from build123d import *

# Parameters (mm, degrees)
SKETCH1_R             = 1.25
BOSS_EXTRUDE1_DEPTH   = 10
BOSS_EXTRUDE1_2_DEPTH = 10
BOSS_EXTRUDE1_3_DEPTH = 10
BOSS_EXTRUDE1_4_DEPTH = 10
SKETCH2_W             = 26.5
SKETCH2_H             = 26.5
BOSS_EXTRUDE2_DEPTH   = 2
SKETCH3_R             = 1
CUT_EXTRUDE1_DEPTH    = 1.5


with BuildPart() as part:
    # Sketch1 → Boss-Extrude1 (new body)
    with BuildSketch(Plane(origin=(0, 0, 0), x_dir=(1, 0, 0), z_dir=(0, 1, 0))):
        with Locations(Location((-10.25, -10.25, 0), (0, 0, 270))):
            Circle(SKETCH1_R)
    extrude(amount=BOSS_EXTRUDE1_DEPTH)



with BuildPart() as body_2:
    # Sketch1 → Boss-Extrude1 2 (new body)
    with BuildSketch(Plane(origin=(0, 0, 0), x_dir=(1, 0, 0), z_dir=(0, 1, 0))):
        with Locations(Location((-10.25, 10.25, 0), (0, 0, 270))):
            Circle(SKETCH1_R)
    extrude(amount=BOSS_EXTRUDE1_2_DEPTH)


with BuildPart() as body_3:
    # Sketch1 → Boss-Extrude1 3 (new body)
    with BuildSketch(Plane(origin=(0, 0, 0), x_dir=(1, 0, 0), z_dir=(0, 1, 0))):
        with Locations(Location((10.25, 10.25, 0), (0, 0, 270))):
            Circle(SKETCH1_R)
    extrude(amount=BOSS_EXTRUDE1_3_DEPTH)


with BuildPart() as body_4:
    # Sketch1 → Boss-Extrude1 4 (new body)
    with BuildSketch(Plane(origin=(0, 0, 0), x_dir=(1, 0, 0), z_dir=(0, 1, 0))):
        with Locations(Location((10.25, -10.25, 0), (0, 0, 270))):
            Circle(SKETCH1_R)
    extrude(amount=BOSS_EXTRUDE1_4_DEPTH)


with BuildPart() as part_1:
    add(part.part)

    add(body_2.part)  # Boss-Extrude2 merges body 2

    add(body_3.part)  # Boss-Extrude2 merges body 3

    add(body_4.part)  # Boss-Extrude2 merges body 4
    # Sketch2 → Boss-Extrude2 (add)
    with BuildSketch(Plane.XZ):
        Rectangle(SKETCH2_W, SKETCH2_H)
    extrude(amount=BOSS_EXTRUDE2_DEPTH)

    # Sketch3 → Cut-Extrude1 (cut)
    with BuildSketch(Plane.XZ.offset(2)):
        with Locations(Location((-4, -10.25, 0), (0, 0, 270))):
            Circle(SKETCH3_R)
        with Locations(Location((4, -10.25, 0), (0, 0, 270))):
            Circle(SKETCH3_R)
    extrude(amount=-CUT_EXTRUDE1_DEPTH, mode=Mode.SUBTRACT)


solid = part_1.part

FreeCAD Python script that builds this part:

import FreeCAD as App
import Part
import Sketcher

doc = App.newDocument("Part")
body = doc.addObject("PartDesign::Body", "Body")

# Sketch on XZ plane
sketch1 = body.newObject("Sketcher::SketchObject", "Sketch")
sketch1.AttachmentSupport = (doc.getObject("XZ_Plane"), [""])
sketch1.MapMode = "FlatFace"
sketch1.addGeometry(Part.Circle(App.Vector(-10.2, 10.2, 0), App.Vector(0, 0, 1), 1.2), False)
sketch1.addConstraint([
    Sketcher.Constraint("Diameter", 0, 2.5),
    Sketcher.Constraint("DistanceX", 0, 3, -1, 1, 10.25),
    Sketcher.Constraint("DistanceY", -1, 1, 0, 3, 10.25),
])
pad1 = body.newObject("PartDesign::Pad", "Pad")
pad1.Profile = sketch1
pad1.Length = 10
pad1.Reversed = True
body2 = doc.addObject("PartDesign::Body", "Body001")

# Sketch on XZ plane
sketch2 = body2.newObject("Sketcher::SketchObject", "Sketch001")
sketch2.AttachmentSupport = (doc.getObject("XZ_Plane001"), [""])
sketch2.MapMode = "FlatFace"
sketch2.addGeometry(Part.Circle(App.Vector(-10.2, -10.2, 0), App.Vector(0, 0, 1), 1.2), False)
sketch2.addConstraint([
    Sketcher.Constraint("Diameter", 0, 2.5),
    Sketcher.Constraint("DistanceX", 0, 3, -1, 1, 10.25),
    Sketcher.Constraint("DistanceY", 0, 3, -1, 1, 10.25),
])
pad2 = body2.newObject("PartDesign::Pad", "Pad001")
pad2.Profile = sketch2
pad2.Length = 10
pad2.Reversed = True
body3 = doc.addObject("PartDesign::Body", "Body002")

# Sketch on XZ plane
sketch3 = body3.newObject("Sketcher::SketchObject", "Sketch002")
sketch3.AttachmentSupport = (doc.getObject("XZ_Plane002"), [""])
sketch3.MapMode = "FlatFace"
sketch3.addGeometry(Part.Circle(App.Vector(10.2, -10.2, 0), App.Vector(0, 0, 1), 1.2), False)
sketch3.addConstraint([
    Sketcher.Constraint("Diameter", 0, 2.5),
    Sketcher.Constraint("DistanceX", -1, 1, 0, 3, 10.25),
    Sketcher.Constraint("DistanceY", 0, 3, -1, 1, 10.25),
])
pad3 = body3.newObject("PartDesign::Pad", "Pad002")
pad3.Profile = sketch3
pad3.Length = 10
pad3.Reversed = True
body4 = doc.addObject("PartDesign::Body", "Body003")

# Sketch on XZ plane
sketch4 = body4.newObject("Sketcher::SketchObject", "Sketch003")
sketch4.AttachmentSupport = (doc.getObject("XZ_Plane003"), [""])
sketch4.MapMode = "FlatFace"
sketch4.addGeometry(Part.Circle(App.Vector(10.2, 10.2, 0), App.Vector(0, 0, 1), 1.2), False)
sketch4.addConstraint([
    Sketcher.Constraint("Diameter", 0, 2.5),
    Sketcher.Constraint("DistanceX", -1, 1, 0, 3, 10.25),
    Sketcher.Constraint("DistanceY", -1, 1, 0, 3, 10.25),
])
pad4 = body4.newObject("PartDesign::Pad", "Pad003")
pad4.Profile = sketch4
pad4.Length = 10
pad4.Reversed = True
body.AllowCompound = True
doc.recompute()

boolean = body.newObject("PartDesign::Boolean", "Boolean")
boolean.Type = "Fuse"
boolean.addObjects([body2])
doc.recompute()

boolean2 = body.newObject("PartDesign::Boolean", "Boolean001")
boolean2.Type = "Fuse"
boolean2.addObjects([body3])
doc.recompute()

boolean3 = body.newObject("PartDesign::Boolean", "Boolean002")
boolean3.Type = "Fuse"
boolean3.addObjects([body4])

# Sketch on XZ plane
sketch5 = body.newObject("Sketcher::SketchObject", "Sketch004")
sketch5.AttachmentSupport = (doc.getObject("XZ_Plane"), [""])
sketch5.MapMode = "FlatFace"
sketch5.addGeometry([
    Part.LineSegment(App.Vector(-13, 13, 0), App.Vector(-13, -13, 0)),
    Part.LineSegment(App.Vector(-13, -13, 0), App.Vector(13, -13, 0)),
    Part.LineSegment(App.Vector(13, -13, 0), App.Vector(13, 13, 0)),
    Part.LineSegment(App.Vector(13, 13, 0), App.Vector(-13, 13, 0)),
], False)
sketch5.addConstraint([
    Sketcher.Constraint("Coincident", 0, 2, 1, 1),
    Sketcher.Constraint("Coincident", 1, 2, 2, 1),
    Sketcher.Constraint("Coincident", 2, 2, 3, 1),
    Sketcher.Constraint("Coincident", 3, 2, 0, 1),
    Sketcher.Constraint("Vertical", 0),
    Sketcher.Constraint("Horizontal", 1),
    Sketcher.Constraint("Vertical", 2),
    Sketcher.Constraint("Horizontal", 3),
    Sketcher.Constraint("Symmetric", 0, 2, 2, 2, -1, 1),
    Sketcher.Constraint("Equal", 3, 0),
    Sketcher.Constraint("DistanceX", 1, 1, 1, 2, 26.5),
])
pad5 = body.newObject("PartDesign::Pad", "Pad004")
pad5.Profile = sketch5
pad5.Length = 2

# Sketch on XZ plane
sketch6 = body.newObject("Sketcher::SketchObject", "Sketch005")
sketch6.AttachmentSupport = (doc.getObject("XZ_Plane"), [""])
sketch6.MapMode = "FlatFace"
sketch6.AttachmentOffset = App.Placement(App.Vector(0, 0, 2), App.Rotation())
sketch6.addGeometry([
    Part.Circle(App.Vector(-4, -10.2, 0), App.Vector(0, 0, 1), 1),
    Part.Circle(App.Vector(4, -10.2, 0), App.Vector(0, 0, 1), 1),
], False)
sketch6.addConstraint([
    Sketcher.Constraint("Equal", 0, 1),
    Sketcher.Constraint("Symmetric", 0, 3, 1, 3, -2),
    Sketcher.Constraint("Diameter", 0, 2.0),
    Sketcher.Constraint("DistanceX", 0, 3, -1, 1, 4.0),
    Sketcher.Constraint("DistanceY", 0, 3, -1, 1, 10.25),
])
pocket1 = body.newObject("PartDesign::Pocket", "Pocket")
pocket1.Profile = sketch6
pocket1.Length = 1.5

doc.recompute()
